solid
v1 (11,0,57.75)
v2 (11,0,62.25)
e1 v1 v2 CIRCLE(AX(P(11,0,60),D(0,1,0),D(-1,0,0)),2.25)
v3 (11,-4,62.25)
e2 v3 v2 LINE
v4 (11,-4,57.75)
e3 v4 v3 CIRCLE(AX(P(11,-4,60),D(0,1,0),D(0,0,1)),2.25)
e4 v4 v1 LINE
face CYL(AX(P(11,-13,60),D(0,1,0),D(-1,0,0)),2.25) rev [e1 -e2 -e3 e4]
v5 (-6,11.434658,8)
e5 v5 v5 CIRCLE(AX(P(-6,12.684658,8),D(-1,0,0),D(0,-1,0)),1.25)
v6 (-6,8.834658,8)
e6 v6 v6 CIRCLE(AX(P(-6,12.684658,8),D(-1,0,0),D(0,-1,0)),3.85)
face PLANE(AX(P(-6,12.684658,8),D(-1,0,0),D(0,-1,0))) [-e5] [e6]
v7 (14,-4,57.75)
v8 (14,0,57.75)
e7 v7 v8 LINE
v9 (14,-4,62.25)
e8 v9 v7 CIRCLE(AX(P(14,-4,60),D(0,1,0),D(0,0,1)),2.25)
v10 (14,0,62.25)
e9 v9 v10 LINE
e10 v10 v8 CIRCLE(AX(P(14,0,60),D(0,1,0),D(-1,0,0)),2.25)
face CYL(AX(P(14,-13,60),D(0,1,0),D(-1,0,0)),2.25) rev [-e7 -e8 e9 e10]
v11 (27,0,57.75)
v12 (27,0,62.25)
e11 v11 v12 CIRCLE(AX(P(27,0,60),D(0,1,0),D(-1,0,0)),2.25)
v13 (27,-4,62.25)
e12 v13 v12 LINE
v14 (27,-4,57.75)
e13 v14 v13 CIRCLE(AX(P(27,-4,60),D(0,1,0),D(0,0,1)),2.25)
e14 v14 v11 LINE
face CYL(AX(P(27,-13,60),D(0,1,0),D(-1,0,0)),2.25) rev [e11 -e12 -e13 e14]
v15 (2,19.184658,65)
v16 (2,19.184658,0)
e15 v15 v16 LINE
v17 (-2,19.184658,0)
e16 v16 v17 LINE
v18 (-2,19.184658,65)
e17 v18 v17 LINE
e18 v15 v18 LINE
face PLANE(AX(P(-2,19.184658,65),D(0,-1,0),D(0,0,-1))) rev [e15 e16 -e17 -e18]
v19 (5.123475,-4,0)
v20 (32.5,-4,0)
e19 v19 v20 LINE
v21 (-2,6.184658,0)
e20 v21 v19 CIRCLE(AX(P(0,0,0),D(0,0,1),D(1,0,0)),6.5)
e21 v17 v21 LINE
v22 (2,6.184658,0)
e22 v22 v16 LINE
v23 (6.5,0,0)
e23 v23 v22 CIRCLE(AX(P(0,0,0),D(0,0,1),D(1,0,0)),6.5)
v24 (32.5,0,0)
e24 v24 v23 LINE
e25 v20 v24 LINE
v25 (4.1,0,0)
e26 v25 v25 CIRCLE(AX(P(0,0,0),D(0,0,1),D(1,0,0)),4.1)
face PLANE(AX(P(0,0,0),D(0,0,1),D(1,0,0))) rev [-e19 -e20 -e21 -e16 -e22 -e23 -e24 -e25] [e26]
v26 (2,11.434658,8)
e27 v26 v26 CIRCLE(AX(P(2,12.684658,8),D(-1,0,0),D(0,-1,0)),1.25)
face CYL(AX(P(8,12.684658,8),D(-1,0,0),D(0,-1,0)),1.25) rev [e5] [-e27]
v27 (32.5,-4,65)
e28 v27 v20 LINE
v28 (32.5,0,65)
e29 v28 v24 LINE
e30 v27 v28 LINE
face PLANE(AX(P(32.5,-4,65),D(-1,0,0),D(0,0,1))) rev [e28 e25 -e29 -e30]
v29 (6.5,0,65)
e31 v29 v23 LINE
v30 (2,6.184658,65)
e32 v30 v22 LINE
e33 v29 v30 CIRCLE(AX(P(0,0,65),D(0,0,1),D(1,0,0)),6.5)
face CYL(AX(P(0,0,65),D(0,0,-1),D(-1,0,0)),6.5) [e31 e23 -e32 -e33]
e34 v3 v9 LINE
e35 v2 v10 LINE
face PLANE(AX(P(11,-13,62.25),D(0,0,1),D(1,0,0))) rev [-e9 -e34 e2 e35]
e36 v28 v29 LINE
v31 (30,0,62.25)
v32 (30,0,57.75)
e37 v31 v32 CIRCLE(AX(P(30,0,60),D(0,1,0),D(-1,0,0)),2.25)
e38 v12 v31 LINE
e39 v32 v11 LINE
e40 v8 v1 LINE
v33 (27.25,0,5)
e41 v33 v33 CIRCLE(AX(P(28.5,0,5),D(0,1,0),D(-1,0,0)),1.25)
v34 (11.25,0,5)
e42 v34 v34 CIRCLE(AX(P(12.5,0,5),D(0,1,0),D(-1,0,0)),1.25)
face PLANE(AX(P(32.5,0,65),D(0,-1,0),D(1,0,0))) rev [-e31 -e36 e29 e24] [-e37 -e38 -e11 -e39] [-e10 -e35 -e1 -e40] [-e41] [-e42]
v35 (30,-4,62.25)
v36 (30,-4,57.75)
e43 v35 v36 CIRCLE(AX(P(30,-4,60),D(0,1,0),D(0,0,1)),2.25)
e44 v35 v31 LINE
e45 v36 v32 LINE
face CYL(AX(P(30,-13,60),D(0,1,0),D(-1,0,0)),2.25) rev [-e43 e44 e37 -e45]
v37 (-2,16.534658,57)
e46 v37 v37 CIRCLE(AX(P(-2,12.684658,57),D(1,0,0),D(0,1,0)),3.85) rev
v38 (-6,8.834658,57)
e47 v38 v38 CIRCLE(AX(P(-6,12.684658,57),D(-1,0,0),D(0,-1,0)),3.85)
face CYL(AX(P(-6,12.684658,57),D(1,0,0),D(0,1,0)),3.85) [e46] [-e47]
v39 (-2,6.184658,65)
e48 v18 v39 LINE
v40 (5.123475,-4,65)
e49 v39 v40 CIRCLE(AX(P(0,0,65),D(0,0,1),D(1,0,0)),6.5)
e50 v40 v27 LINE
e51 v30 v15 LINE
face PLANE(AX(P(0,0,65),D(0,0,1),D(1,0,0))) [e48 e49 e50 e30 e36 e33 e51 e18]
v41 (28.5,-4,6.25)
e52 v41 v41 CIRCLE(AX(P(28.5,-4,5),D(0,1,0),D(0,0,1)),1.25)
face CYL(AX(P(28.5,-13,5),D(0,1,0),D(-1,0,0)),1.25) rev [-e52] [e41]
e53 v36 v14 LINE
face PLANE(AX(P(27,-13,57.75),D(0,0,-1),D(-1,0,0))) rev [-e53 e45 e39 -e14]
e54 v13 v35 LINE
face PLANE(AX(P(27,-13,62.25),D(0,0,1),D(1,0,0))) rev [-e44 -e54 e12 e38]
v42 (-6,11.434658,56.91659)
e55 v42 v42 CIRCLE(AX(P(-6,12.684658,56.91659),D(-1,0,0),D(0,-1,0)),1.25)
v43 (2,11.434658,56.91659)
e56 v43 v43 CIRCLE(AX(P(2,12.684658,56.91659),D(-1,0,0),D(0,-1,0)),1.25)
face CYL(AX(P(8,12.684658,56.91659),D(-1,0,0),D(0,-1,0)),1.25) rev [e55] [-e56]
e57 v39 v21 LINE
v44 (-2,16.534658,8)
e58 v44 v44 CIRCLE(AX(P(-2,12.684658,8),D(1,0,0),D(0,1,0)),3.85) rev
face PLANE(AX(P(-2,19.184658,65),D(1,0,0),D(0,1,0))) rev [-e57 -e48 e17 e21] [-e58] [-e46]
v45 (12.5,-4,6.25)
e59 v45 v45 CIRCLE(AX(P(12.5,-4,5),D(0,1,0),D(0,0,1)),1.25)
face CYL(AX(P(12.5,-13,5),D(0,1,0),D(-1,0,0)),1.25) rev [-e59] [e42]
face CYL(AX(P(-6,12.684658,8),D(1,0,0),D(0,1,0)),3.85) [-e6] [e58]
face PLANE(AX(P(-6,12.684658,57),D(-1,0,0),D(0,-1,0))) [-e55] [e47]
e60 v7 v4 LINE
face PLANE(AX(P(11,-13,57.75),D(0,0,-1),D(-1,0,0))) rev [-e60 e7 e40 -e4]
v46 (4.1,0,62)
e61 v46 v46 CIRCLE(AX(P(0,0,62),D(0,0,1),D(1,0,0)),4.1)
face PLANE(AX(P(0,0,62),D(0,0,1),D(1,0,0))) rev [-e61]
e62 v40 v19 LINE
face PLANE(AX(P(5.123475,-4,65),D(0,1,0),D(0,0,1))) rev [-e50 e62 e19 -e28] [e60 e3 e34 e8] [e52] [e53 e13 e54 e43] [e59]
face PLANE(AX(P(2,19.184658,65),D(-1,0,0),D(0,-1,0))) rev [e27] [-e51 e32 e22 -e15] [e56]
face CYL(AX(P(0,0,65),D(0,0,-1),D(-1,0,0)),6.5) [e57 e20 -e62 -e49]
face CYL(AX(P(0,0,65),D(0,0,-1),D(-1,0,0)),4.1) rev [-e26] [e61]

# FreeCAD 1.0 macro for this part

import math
import FreeCAD as App
import Part
import Sketcher

V = App.Vector
Q = App.Units.Quantity

doc = App.newDocument("Part")
params = doc.addObject("Spreadsheet::Sheet", "Params")
for row, (alias, value) in enumerate([
    ("sketch1_diameter", "8.2 mm"),
    ("sketch1_radius", "6.5 mm"),
    ("sketch1_width", "26 mm"),
    ("sketch1_width2", "4 mm"),
    ("sketch1_height", "13 mm"),
    ("pad1_length", "65 mm"),
    ("pad2_length", "3 mm"),
    ("sketch3_diameter", "2.5 mm"),
    ("sketch3_width", "3 mm"),
    ("sketch3_radius", "2.25 mm"),
    ("pocket1_length", "13 mm"),
    ("sketch4_diameter", "7.7 mm"),
    ("pad3_length", "4 mm"),
    ("sketch5_diameter", "2.5 mm"),
    ("pocket2_length", "14 mm"),
], start=1):
    params.set(f"A{row}", alias)
    params.set(f"B{row}", "=" + value)
    params.setAlias(f"B{row}", alias)

body = doc.addObject("PartDesign::Body", "Body")

sketch1 = body.newObject("Sketcher::SketchObject", "Sketch")
sketch1.AttachmentSupport = (doc.getObject("XY_Plane"), [""])
sketch1.MapMode = "FlatFace"
sketch1.addGeometry(Part.LineSegment(V(5.1, -4, 0), V(32.5, -4, 0)), False)
sketch1.addGeometry(Part.LineSegment(V(32.5, -4, 0), V(32.5, 0, 0)), False)
sketch1.addGeometry(Part.LineSegment(V(32.5, 0, 0), V(6.5, 0, 0)), False)
sketch1.addGeometry(Part.ArcOfCircle(Part.Circle(V(0, 0, 0), V(0, 0, 1), 6.5), math.radians(0), math.radians(72)), False)
sketch1.addGeometry(Part.LineSegment(V(2, 6.2, 0), V(2, 19.2, 0)), False)
sketch1.addGeometry(Part.LineSegment(V(2, 19.2, 0), V(-2, 19.2, 0)), False)
sketch1.addGeometry(Part.LineSegment(V(-2, 19.2, 0), V(-2, 6.2, 0)), False)
sketch1.addGeometry(Part.ArcOfCircle(Part.Circle(V(0, 0, 0), V(0, 0, 1), 6.5), math.radians(108), math.radians(322)), False)
sketch1.addGeometry(Part.Circle(V(0, 0, 0), V(0, 0, 1), 4.1), False)
sketch1.addConstraint(Sketcher.Constraint("Coincident", 0, 2, 1, 1))
sketch1.addConstraint(Sketcher.Constraint("Coincident", 1, 2, 2, 1))
sketch1.addConstraint(Sketcher.Constraint("Coincident", 2, 2, 3, 1))
sketch1.addConstraint(Sketcher.Constraint("Coincident", 3, 2, 4, 1))
sketch1.addConstraint(Sketcher.Constraint("Coincident", 4, 2, 5, 1))
sketch1.addConstraint(Sketcher.Constraint("Coincident", 5, 2, 6, 1))
sketch1.addConstraint(Sketcher.Constraint("Coincident", 6, 2, 7, 1))
sketch1.addConstraint(Sketcher.Constraint("Coincident", 7, 2, 0, 1))
sketch1.addConstraint(Sketcher.Constraint("Horizontal", 0))
sketch1.addConstraint(Sketcher.Constraint("Vertical", 1))
sketch1.addConstraint(Sketcher.Constraint("Horizontal", 2))
sketch1.addConstraint(Sketcher.Constraint("Vertical", 4))
sketch1.addConstraint(Sketcher.Constraint("Horizontal", 5))
sketch1.addConstraint(Sketcher.Constraint("Vertical", 6))
sketch1.addConstraint(Sketcher.Constraint("Coincident", 3, 3, -1, 1))
sketch1.addConstraint(Sketcher.Constraint("Coincident", 7, 3, -1, 1))
sketch1.addConstraint(Sketcher.Constraint("Coincident", 8, 3, -1, 1))
sketch1.addConstraint(Sketcher.Constraint("Equal", 3, 7))
sketch1.addConstraint(Sketcher.Constraint("PointOnObject", 1, 2, -1))
sketch1.addConstraint(Sketcher.Constraint("Horizontal", 3, 2, 6, 2))
sketch1.addConstraint(Sketcher.Constraint("Equal", 5, 1))
sketch1.addConstraint(Sketcher.Constraint("Diameter", 8, Q("8.2 mm")))
sketch1.addConstraint(Sketcher.Constraint("Radius", 3, Q("6.5 mm")))
sketch1.addConstraint(Sketcher.Constraint("DistanceX", 2, 2, 2, 1, Q("26 mm")))
sketch1.addConstraint(Sketcher.Constraint("DistanceX", 5, 2, 5, 1, Q("4 mm")))
sketch1.addConstraint(Sketcher.Constraint("DistanceY", 4, 1, 4, 2, Q("13 mm")))
sketch1.setExpression("Constraints[21]", "Params.sketch1_diameter")
sketch1.setExpression("Constraints[22]", "Params.sketch1_radius")
sketch1.setExpression("Constraints[23]", "Params.sketch1_width")
sketch1.setExpression("Constraints[24]", "Params.sketch1_width2")
sketch1.setExpression("Constraints[25]", "Params.sketch1_height")
pad1 = body.newObject("PartDesign::Pad", "Pad")
pad1.Profile = sketch1
pad1.setExpression("Length", "Params.pad1_length")

sketch2 = body.newObject("Sketcher::SketchObject", "Sketch001")
sketch2.AttachmentSupport = (doc.getObject("XY_Plane"), [""])
sketch2.MapMode = "FlatFace"
sketch2.AttachmentOffset = App.Placement(V(0, 0, 65), App.Rotation())
sketch2.addGeometry(Part.Circle(V(0, 0, 0), V(0, 0, 1), 4.9), False)
sketch2.addConstraint(Sketcher.Constraint("Coincident", 0, 3, -1, 1))
sketch2.addConstraint(Sketcher.Constraint("Diameter", 0, Q("9.846401 mm")))
pad2 = body.newObject("PartDesign::Pad", "Pad001")
pad2.Profile = sketch2
pad2.setExpression("Length", "Params.pad2_length")
pad2.Reversed = True

sketch3 = body.newObject("Sketcher::SketchObject", "Sketch002")
sketch3.AttachmentSupport = (doc.getObject("XZ_Plane"), [""])
sketch3.MapMode = "FlatFace"
sketch3.addGeometry(Part.Circle(V(12.5, 5, 0), V(0, 0, 1), 1.2), False)
sketch3.addGeometry(Part.Circle(V(28.5, 5, 0), V(0, 0, 1), 1.2), False)
sketch3.addGeometry(Part.LineSegment(V(30, 57.8, 0), V(27, 57.8, 0)), False)
sketch3.addGeometry(Part.ArcOfCircle(Part.Circle(V(27, 60, 0), V(0, 0, 1), 2.2), math.radians(90), math.radians(270)), False)
sketch3.addGeometry(Part.LineSegment(V(27, 62.2, 0), V(30, 62.2, 0)), False)
sketch3.addGeometry(Part.ArcOfCircle(Part.Circle(V(30, 60, 0), V(0, 0, 1), 2.2), math.radians(-90), math.radians(90)), False)
sketch3.addGeometry(Part.LineSegment(V(14, 57.8, 0), V(11, 57.8, 0)), False)
sketch3.addGeometry(Part.ArcOfCircle(Part.Circle(V(11, 60, 0), V(0, 0, 1), 2.2), math.radians(90), math.radians(270)), False)
sketch3.addGeometry(Part.LineSegment(V(11, 62.2, 0), V(14, 62.2, 0)), False)
sketch3.addGeometry(Part.ArcOfCircle(Part.Circle(V(14, 60, 0), V(0, 0, 1), 2.2), math.radians(-90), math.radians(90)), False)
sketch3.addConstraint(Sketcher.Constraint("Tangent", 2, 2, 3, 2))
sketch3.addConstraint(Sketcher.Constraint("Tangent", 3, 1, 4, 1))
sketch3.addConstraint(Sketcher.Constraint("Tangent", 4, 2, 5, 2))
sketch3.addConstraint(Sketcher.Constraint("Tangent", 5, 1, 2, 1))
sketch3.addConstraint(Sketcher.Constraint("Tangent", 6, 2, 7, 2))
sketch3.addConstraint(Sketcher.Constraint("Tangent", 7, 1, 8, 1))
sketch3.addConstraint(Sketcher.Constraint("Tangent", 8, 2, 9, 2))
sketch3.addConstraint(Sketcher.Constraint("Tangent", 9, 1, 6, 1))
sketch3.addConstraint(Sketcher.Constraint("Horizontal", 2))
sketch3.addConstraint(Sketcher.Constraint("Horizontal", 4))
sketch3.addConstraint(Sketcher.Constraint("Horizontal", 6))
sketch3.addConstraint(Sketcher.Constraint("Horizontal", 8))
sketch3.addConstraint(Sketcher.Constraint("Equal", 0, 1))
sketch3.addConstraint(Sketcher.Constraint("Equal", 5, 7))
sketch3.addConstraint(Sketcher.Constraint("Horizontal", 0, 3, 1, 3))
sketch3.addConstraint(Sketcher.Constraint("Horizontal", 5, 3, 7, 3))
sketch3.addConstraint(Sketcher.Constraint("Equal", 4, 6))
sketch3.addConstraint(Sketcher.Constraint("Diameter", 0, Q("2.5 mm")))
sketch3.addConstraint(Sketcher.Constraint("DistanceX", 2, 2, 2, 1, Q("3 mm")))
sketch3.addConstraint(Sketcher.Constraint("Radius", 3, Q("2.25 mm")))
sketch3.addConstraint(Sketcher.Constraint("DistanceY", -1, 1, 0, 3, Q("5 mm")))
sketch3.addConstraint(Sketcher.Constraint("DistanceX", -1, 1, 3, 3, Q("27 mm")))
sketch3.addConstraint(Sketcher.Constraint("DistanceY", -1, 1, 3, 3, Q("60 mm")))
sketch3.addConstraint(Sketcher.Constraint("DistanceX", -1, 1, 7, 3, Q("11 mm")))
sketch3.addConstraint(Sketcher.Constraint("DistanceX", 0, 3, 1, 3, Q("16 mm")))
sketch3.addConstraint(Sketcher.Constraint("DistanceX", -1, 1, 0, 3, Q("12.5 mm")))
sketch3.setExpression("Constraints[17]", "Params.sketch3_diameter")
sketch3.setExpression("Constraints[18]", "Params.sketch3_width")
sketch3.setExpression("Constraints[19]", "Params.sketch3_radius")
pocket1 = body.newObject("PartDesign::Pocket", "Pocket")
pocket1.Profile = sketch3
pocket1.setExpression("Length", "Params.pocket1_length")
pocket1.Reversed = True

sketch4 = body.newObject("Sketcher::SketchObject", "Sketch003")
sketch4.AttachmentSupport = (doc.getObject("YZ_Plane"), [""])
sketch4.MapMode = "FlatFace"
sketch4.AttachmentOffset = App.Placement(V(0, 0, -2), App.Rotation())
sketch4.addGeometry(Part.Circle(V(12.7, 8, 0), V(0, 0, 1), 3.9), False)
sketch4.addGeometry(Part.Circle(V(12.7, 57, 0), V(0, 0, 1), 3.9), False)
sketch4.addConstraint(Sketcher.Constraint("Equal", 0, 1))
sketch4.addConstraint(Sketcher.Constraint("Vertical", 0, 3, 1, 3))
sketch4.addConstraint(Sketcher.Constraint("Diameter", 0, Q("7.7 mm")))
sketch4.addConstraint(Sketcher.Constraint("DistanceY", -1, 1, 0, 3, Q("8 mm")))
sketch4.addConstraint(Sketcher.Constraint("DistanceY", -1, 1, 1, 3, Q("57 mm")))
sketch4.addConstraint(Sketcher.Constraint("DistanceX", -1, 1, 0, 3, Q("12.684658 mm")))
sketch4.setExpression("Constraints[2]", "Params.sketch4_diameter")
pad3 = body.newObject("PartDesign::Pad", "Pad002")
pad3.Profile = sketch4
pad3.setExpression("Length", "Params.pad3_length")
pad3.Reversed = True

sketch5 = body.newObject("Sketcher::SketchObject", "Sketch004")
sketch5.AttachmentSupport = (doc.getObject("YZ_Plane"), [""])
sketch5.MapMode = "FlatFace"
sketch5.AttachmentOffset = App.Placement(V(0, 0, -6), App.Rotation())
sketch5.addGeometry(Part.Circle(V(12.7, 8, 0), V(0, 0, 1), 1.2), False)
sketch5.addGeometry(Part.Circle(V(12.7, 56.9, 0), V(0, 0, 1), 1.2), False)
sketch5.addConstraint(Sketcher.Constraint("Equal", 0, 1))
sketch5.addConstraint(Sketcher.Constraint("Vertical", 0, 3, 1, 3))
sketch5.addConstraint(Sketcher.Constraint("Diameter", 0, Q("2.5 mm")))
sketch5.addConstraint(Sketcher.Constraint("DistanceY", -1, 1, 0, 3, Q("8 mm")))
sketch5.addConstraint(Sketcher.Constraint("DistanceX", -1, 1, 0, 3, Q("12.684658 mm")))
sketch5.addConstraint(Sketcher.Constraint("DistanceY", -1, 1, 1, 3, Q("56.91659 mm")))
sketch5.setExpression("Constraints[2]", "Params.sketch5_diameter")
pocket2 = body.newObject("PartDesign::Pocket", "Pocket001")
pocket2.Profile = sketch5
pocket2.setExpression("Length", "Params.pocket2_length")
pocket2.Reversed = True

doc.recompute()
